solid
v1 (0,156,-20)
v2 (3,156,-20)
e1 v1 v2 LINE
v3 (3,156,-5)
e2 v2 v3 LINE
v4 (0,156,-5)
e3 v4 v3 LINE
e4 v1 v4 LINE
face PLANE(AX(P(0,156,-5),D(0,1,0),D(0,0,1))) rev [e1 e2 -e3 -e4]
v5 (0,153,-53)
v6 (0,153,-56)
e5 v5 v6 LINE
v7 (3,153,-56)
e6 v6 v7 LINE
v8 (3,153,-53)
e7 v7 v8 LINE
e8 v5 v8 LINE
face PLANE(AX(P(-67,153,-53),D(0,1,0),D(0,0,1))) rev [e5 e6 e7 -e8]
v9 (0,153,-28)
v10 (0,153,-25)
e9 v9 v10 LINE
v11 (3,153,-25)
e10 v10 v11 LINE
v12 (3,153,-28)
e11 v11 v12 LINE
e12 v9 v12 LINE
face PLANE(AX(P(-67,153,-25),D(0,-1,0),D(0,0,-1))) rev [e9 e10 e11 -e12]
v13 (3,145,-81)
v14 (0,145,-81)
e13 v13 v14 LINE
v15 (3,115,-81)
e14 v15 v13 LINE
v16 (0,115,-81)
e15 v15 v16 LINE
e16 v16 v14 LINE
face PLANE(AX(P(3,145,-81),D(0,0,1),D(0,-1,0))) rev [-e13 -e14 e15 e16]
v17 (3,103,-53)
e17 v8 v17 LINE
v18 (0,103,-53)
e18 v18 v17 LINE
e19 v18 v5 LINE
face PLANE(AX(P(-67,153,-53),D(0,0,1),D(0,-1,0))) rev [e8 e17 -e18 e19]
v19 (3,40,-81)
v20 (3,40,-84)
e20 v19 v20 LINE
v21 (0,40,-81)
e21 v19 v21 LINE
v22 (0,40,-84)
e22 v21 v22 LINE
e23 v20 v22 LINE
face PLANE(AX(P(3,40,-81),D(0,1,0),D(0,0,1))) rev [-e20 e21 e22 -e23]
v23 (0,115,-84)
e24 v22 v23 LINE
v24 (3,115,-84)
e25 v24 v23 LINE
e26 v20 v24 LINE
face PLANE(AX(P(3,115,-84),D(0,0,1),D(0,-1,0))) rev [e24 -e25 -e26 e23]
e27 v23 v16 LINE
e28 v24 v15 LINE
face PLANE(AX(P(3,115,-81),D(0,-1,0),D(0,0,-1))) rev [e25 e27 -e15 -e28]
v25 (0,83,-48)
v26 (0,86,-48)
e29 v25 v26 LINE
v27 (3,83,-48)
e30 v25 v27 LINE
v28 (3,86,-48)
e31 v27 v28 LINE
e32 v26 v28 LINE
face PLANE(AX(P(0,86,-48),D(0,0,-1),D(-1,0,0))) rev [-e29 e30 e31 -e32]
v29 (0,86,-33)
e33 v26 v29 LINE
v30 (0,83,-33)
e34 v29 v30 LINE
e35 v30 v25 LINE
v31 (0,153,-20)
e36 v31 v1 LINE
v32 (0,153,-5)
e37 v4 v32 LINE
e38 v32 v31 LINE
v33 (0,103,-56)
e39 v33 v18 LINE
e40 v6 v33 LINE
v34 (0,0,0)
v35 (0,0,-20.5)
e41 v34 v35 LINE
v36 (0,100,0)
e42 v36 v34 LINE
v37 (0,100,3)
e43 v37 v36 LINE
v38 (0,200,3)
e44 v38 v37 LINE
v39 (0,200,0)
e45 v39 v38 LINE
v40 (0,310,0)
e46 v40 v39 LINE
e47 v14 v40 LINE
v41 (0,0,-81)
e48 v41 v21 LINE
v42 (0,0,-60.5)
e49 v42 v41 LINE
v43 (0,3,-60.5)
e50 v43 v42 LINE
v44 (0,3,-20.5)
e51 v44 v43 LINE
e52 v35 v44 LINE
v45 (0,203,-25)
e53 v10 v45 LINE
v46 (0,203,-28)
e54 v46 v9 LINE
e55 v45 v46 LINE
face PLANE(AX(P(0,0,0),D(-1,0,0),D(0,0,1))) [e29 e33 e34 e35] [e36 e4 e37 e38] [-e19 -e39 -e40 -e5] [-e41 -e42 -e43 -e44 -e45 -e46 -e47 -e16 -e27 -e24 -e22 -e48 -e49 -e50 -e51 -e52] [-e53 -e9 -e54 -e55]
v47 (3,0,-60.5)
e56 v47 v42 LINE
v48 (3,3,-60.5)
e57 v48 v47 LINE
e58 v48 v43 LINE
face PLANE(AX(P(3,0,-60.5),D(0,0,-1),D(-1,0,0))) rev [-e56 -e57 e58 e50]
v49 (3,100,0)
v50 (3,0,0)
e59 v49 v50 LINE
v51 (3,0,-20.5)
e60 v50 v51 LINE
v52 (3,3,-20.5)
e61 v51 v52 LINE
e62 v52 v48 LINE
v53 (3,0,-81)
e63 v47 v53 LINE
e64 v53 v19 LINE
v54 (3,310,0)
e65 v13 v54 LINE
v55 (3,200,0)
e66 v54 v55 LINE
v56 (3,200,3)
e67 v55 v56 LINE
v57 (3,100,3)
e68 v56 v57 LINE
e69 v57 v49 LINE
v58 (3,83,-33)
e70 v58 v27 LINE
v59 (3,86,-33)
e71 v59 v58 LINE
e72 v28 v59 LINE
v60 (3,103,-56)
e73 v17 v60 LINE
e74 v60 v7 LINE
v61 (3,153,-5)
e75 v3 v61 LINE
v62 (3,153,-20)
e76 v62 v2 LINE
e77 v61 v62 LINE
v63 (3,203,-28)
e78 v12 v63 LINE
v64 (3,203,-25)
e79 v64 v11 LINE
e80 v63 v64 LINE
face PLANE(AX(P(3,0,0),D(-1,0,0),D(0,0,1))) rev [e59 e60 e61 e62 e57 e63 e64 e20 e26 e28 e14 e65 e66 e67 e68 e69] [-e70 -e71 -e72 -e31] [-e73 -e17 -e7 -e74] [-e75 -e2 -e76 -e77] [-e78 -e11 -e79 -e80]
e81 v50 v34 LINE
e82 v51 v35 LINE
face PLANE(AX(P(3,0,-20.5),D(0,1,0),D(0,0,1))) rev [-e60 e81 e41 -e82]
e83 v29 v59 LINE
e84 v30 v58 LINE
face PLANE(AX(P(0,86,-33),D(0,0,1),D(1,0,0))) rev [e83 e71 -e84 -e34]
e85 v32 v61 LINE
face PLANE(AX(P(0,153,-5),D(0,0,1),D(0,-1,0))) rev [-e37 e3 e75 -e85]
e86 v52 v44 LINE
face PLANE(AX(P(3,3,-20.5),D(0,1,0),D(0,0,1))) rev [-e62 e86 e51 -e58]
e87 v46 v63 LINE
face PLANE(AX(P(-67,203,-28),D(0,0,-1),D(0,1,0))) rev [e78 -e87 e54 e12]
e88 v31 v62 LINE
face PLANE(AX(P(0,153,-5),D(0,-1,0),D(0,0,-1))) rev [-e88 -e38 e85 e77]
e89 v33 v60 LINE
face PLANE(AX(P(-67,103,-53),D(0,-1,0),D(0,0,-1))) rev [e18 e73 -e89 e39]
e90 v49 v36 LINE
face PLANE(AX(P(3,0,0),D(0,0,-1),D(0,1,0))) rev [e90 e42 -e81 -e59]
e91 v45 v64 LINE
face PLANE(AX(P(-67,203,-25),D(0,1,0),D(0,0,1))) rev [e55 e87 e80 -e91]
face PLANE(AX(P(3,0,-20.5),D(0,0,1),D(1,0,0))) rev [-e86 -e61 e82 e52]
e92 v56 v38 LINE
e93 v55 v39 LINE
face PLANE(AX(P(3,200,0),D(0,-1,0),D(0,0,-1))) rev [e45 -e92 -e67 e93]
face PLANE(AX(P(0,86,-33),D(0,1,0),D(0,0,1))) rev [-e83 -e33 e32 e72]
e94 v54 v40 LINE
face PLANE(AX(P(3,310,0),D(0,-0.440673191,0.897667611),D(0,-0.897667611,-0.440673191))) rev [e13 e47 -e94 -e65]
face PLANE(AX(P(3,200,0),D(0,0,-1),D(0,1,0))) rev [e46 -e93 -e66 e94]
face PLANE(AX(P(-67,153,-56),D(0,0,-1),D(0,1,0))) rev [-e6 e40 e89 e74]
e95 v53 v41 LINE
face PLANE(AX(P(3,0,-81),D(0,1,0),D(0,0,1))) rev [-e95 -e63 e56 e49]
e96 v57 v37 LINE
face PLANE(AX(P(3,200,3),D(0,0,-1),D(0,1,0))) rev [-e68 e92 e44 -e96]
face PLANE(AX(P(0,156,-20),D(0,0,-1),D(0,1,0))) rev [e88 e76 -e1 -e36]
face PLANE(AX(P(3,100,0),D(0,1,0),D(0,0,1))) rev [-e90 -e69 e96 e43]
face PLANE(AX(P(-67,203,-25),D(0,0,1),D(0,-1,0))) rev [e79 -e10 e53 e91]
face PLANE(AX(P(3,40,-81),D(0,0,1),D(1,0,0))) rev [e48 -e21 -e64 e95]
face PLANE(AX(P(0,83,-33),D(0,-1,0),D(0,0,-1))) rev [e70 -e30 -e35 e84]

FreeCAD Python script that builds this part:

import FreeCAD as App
import Part
import Sketcher
from FreeCAD import Vector
Q = App.Units.Quantity


def add_polygon(sketch, points):
    """Adds a closed chain of lines whose ends are joined by coincident constraints."""
    first, n = sketch.GeometryCount, len(points)
    for a, b in zip(points, points[1:] + points[:1]):
        sketch.addGeometry(Part.LineSegment(App.Vector(*a, 0), App.Vector(*b, 0)), False)
    for i in range(n):
        sketch.addConstraint(Sketcher.Constraint("Coincident", first + i, 2, first + (i + 1) % n, 1))

doc = App.newDocument("Part")
body = doc.addObject("PartDesign::Body", "Body")

# Sketch on YZ plane
sketch1 = doc.addObject("Sketcher::SketchObject", "Sketch")
body.addObject(sketch1)
sketch1.AttachmentSupport = (doc.YZ_Plane, [""])
sketch1.MapMode = "FlatFace"
add_polygon(sketch1, [(100, 0), (0, 0), (0, -20.5), (3, -20.5), (3, -60.5), (0, -60.5), (0, -81), (40, -81), (40, -84), (115, -84), (115, -81), (145, -81), (310, 0), (200, 0), (200, 3), (100, 3)])  # lines 0-15
sketch1.addConstraint([
    Sketcher.Constraint("Horizontal", 0),
    Sketcher.Constraint("Vertical", 1),
    Sketcher.Constraint("Horizontal", 2),
    Sketcher.Constraint("Vertical", 3),
    Sketcher.Constraint("Horizontal", 4),
    Sketcher.Constraint("Vertical", 5),
    Sketcher.Constraint("Horizontal", 6),
    Sketcher.Constraint("Vertical", 7),
    Sketcher.Constraint("Horizontal", 8),
    Sketcher.Constraint("Vertical", 9),
    Sketcher.Constraint("Horizontal", 10),
    Sketcher.Constraint("Horizontal", 12),
    Sketcher.Constraint("Vertical", 13),
    Sketcher.Constraint("Horizontal", 14),
    Sketcher.Constraint("Vertical", 15),
    Sketcher.Constraint("Coincident", 0, 2, -1, 1),
    Sketcher.Constraint("PointOnObject", 4, 2, -2),
    Sketcher.Constraint("PointOnObject", 11, 2, -1),
    Sketcher.Constraint("Horizontal", 6, 2, 9, 2),
    Sketcher.Constraint("Equal", 0, 14),
    Sketcher.Constraint("Equal", 6, 3),
    Sketcher.Constraint("Equal", 1, 5),
    Sketcher.Constraint("Equal", 4, 7),
    Sketcher.Constraint("Equal", 9, 13),
    Sketcher.Constraint("DistanceX", 0, 2, 0, 1, Q("100 mm")),
    Sketcher.Constraint("DistanceX", 2, 1, 2, 2, Q("3 mm")),
    Sketcher.Constraint("DistanceX", 6, 1, 6, 2, Q("40 mm")),
    Sketcher.Constraint("DistanceX", 8, 1, 8, 2, Q("75 mm")),
    Sketcher.Constraint("DistanceX", 10, 1, 10, 2, Q("30 mm")),
    Sketcher.Constraint("DistanceX", 12, 2, 12, 1, Q("110 mm")),
    Sketcher.Constraint("DistanceY", 1, 2, 1, 1, Q("20.5 mm")),
])
pad1 = doc.addObject("PartDesign::Pad", "Pad")
body.addObject(pad1)
pad1.Profile = sketch1
pad1.Length = 3

# Sketch on YZ plane
sketch2 = doc.addObject("Sketcher::SketchObject", "Sketch001")
body.addObject(sketch2)
sketch2.AttachmentSupport = (doc.YZ_Plane, [""])
sketch2.MapMode = "FlatFace"
sketch2.AttachmentOffset = App.Placement(Vector(0, 0, 3), App.Rotation())
add_polygon(sketch2, [(203, -25), (153, -25), (153, -28), (203, -28)])  # lines 0-3
add_polygon(sketch2, [(153, -53), (103, -53), (103, -56), (153, -56)])  # lines 4-7
sketch2.addConstraint([
    Sketcher.Constraint("Horizontal", 0),
    Sketcher.Constraint("Vertical", 1),
    Sketcher.Constraint("Horizontal", 2),
    Sketcher.Constraint("Vertical", 3),
    Sketcher.Constraint("Horizontal", 4),
    Sketcher.Constraint("Vertical", 5),
    Sketcher.Constraint("Horizontal", 6),
    Sketcher.Constraint("Vertical", 7),
    Sketcher.Constraint("Vertical", 1, 2, 6, 2),
    Sketcher.Constraint("Equal", 2, 4),
    Sketcher.Constraint("Equal", 3, 5),
    Sketcher.Constraint("DistanceX", 0, 2, 0, 1, Q("50 mm")),
    Sketcher.Constraint("DistanceY", 1, 2, 1, 1, Q("3 mm")),
    Sketcher.Constraint("DistanceX", -1, 1, 0, 2, Q("153 mm")),
    Sketcher.Constraint("DistanceY", 0, 2, -1, 1, Q("25 mm")),
    Sketcher.Constraint("DistanceY", 4, 2, -1, 1, Q("53 mm")),
])
pocket1 = doc.addObject("PartDesign::Pocket", "Pocket")
body.addObject(pocket1)
pocket1.Profile = sketch2
pocket1.Length = 70

# Sketch on YZ plane
sketch3 = doc.addObject("Sketcher::SketchObject", "Sketch002")
body.addObject(sketch3)
sketch3.AttachmentSupport = (doc.YZ_Plane, [""])
sketch3.MapMode = "FlatFace"
sketch3.AttachmentOffset = App.Placement(Vector(0, 0, 3), App.Rotation())
add_polygon(sketch3, [(156, -5), (153, -5), (153, -20), (156, -20)])  # lines 0-3
add_polygon(sketch3, [(86, -33), (83, -33), (83, -48), (86, -48)])  # lines 4-7
sketch3.addConstraint([
    Sketcher.Constraint("Horizontal", 0),
    Sketcher.Constraint("Vertical", 1),
    Sketcher.Constraint("Horizontal", 2),
    Sketcher.Constraint("Vertical", 3),
    Sketcher.Constraint("Horizontal", 4),
    Sketcher.Constraint("Vertical", 5),
    Sketcher.Constraint("Horizontal", 6),
    Sketcher.Constraint("Vertical", 7),
    Sketcher.Constraint("Equal", 2, 4),
    Sketcher.Constraint("Equal", 3, 5),
    Sketcher.Constraint("DistanceX", 0, 2, 0, 1, Q("3 mm")),
    Sketcher.Constraint("DistanceY", 1, 2, 1, 1, Q("15 mm")),
    Sketcher.Constraint("DistanceX", -1, 1, 0, 2, Q("153 mm")),
    Sketcher.Constraint("DistanceY", 0, 2, -1, 1, Q("5 mm")),
    Sketcher.Constraint("DistanceX", -1, 1, 4, 2, Q("83 mm")),
    Sketcher.Constraint("DistanceY", 4, 2, -1, 1, Q("33 mm")),
])
pocket2 = doc.addObject("PartDesign::Pocket", "Pocket001")
body.addObject(pocket2)
pocket2.Profile = sketch3
pocket2.Length = 3

doc.recompute()
